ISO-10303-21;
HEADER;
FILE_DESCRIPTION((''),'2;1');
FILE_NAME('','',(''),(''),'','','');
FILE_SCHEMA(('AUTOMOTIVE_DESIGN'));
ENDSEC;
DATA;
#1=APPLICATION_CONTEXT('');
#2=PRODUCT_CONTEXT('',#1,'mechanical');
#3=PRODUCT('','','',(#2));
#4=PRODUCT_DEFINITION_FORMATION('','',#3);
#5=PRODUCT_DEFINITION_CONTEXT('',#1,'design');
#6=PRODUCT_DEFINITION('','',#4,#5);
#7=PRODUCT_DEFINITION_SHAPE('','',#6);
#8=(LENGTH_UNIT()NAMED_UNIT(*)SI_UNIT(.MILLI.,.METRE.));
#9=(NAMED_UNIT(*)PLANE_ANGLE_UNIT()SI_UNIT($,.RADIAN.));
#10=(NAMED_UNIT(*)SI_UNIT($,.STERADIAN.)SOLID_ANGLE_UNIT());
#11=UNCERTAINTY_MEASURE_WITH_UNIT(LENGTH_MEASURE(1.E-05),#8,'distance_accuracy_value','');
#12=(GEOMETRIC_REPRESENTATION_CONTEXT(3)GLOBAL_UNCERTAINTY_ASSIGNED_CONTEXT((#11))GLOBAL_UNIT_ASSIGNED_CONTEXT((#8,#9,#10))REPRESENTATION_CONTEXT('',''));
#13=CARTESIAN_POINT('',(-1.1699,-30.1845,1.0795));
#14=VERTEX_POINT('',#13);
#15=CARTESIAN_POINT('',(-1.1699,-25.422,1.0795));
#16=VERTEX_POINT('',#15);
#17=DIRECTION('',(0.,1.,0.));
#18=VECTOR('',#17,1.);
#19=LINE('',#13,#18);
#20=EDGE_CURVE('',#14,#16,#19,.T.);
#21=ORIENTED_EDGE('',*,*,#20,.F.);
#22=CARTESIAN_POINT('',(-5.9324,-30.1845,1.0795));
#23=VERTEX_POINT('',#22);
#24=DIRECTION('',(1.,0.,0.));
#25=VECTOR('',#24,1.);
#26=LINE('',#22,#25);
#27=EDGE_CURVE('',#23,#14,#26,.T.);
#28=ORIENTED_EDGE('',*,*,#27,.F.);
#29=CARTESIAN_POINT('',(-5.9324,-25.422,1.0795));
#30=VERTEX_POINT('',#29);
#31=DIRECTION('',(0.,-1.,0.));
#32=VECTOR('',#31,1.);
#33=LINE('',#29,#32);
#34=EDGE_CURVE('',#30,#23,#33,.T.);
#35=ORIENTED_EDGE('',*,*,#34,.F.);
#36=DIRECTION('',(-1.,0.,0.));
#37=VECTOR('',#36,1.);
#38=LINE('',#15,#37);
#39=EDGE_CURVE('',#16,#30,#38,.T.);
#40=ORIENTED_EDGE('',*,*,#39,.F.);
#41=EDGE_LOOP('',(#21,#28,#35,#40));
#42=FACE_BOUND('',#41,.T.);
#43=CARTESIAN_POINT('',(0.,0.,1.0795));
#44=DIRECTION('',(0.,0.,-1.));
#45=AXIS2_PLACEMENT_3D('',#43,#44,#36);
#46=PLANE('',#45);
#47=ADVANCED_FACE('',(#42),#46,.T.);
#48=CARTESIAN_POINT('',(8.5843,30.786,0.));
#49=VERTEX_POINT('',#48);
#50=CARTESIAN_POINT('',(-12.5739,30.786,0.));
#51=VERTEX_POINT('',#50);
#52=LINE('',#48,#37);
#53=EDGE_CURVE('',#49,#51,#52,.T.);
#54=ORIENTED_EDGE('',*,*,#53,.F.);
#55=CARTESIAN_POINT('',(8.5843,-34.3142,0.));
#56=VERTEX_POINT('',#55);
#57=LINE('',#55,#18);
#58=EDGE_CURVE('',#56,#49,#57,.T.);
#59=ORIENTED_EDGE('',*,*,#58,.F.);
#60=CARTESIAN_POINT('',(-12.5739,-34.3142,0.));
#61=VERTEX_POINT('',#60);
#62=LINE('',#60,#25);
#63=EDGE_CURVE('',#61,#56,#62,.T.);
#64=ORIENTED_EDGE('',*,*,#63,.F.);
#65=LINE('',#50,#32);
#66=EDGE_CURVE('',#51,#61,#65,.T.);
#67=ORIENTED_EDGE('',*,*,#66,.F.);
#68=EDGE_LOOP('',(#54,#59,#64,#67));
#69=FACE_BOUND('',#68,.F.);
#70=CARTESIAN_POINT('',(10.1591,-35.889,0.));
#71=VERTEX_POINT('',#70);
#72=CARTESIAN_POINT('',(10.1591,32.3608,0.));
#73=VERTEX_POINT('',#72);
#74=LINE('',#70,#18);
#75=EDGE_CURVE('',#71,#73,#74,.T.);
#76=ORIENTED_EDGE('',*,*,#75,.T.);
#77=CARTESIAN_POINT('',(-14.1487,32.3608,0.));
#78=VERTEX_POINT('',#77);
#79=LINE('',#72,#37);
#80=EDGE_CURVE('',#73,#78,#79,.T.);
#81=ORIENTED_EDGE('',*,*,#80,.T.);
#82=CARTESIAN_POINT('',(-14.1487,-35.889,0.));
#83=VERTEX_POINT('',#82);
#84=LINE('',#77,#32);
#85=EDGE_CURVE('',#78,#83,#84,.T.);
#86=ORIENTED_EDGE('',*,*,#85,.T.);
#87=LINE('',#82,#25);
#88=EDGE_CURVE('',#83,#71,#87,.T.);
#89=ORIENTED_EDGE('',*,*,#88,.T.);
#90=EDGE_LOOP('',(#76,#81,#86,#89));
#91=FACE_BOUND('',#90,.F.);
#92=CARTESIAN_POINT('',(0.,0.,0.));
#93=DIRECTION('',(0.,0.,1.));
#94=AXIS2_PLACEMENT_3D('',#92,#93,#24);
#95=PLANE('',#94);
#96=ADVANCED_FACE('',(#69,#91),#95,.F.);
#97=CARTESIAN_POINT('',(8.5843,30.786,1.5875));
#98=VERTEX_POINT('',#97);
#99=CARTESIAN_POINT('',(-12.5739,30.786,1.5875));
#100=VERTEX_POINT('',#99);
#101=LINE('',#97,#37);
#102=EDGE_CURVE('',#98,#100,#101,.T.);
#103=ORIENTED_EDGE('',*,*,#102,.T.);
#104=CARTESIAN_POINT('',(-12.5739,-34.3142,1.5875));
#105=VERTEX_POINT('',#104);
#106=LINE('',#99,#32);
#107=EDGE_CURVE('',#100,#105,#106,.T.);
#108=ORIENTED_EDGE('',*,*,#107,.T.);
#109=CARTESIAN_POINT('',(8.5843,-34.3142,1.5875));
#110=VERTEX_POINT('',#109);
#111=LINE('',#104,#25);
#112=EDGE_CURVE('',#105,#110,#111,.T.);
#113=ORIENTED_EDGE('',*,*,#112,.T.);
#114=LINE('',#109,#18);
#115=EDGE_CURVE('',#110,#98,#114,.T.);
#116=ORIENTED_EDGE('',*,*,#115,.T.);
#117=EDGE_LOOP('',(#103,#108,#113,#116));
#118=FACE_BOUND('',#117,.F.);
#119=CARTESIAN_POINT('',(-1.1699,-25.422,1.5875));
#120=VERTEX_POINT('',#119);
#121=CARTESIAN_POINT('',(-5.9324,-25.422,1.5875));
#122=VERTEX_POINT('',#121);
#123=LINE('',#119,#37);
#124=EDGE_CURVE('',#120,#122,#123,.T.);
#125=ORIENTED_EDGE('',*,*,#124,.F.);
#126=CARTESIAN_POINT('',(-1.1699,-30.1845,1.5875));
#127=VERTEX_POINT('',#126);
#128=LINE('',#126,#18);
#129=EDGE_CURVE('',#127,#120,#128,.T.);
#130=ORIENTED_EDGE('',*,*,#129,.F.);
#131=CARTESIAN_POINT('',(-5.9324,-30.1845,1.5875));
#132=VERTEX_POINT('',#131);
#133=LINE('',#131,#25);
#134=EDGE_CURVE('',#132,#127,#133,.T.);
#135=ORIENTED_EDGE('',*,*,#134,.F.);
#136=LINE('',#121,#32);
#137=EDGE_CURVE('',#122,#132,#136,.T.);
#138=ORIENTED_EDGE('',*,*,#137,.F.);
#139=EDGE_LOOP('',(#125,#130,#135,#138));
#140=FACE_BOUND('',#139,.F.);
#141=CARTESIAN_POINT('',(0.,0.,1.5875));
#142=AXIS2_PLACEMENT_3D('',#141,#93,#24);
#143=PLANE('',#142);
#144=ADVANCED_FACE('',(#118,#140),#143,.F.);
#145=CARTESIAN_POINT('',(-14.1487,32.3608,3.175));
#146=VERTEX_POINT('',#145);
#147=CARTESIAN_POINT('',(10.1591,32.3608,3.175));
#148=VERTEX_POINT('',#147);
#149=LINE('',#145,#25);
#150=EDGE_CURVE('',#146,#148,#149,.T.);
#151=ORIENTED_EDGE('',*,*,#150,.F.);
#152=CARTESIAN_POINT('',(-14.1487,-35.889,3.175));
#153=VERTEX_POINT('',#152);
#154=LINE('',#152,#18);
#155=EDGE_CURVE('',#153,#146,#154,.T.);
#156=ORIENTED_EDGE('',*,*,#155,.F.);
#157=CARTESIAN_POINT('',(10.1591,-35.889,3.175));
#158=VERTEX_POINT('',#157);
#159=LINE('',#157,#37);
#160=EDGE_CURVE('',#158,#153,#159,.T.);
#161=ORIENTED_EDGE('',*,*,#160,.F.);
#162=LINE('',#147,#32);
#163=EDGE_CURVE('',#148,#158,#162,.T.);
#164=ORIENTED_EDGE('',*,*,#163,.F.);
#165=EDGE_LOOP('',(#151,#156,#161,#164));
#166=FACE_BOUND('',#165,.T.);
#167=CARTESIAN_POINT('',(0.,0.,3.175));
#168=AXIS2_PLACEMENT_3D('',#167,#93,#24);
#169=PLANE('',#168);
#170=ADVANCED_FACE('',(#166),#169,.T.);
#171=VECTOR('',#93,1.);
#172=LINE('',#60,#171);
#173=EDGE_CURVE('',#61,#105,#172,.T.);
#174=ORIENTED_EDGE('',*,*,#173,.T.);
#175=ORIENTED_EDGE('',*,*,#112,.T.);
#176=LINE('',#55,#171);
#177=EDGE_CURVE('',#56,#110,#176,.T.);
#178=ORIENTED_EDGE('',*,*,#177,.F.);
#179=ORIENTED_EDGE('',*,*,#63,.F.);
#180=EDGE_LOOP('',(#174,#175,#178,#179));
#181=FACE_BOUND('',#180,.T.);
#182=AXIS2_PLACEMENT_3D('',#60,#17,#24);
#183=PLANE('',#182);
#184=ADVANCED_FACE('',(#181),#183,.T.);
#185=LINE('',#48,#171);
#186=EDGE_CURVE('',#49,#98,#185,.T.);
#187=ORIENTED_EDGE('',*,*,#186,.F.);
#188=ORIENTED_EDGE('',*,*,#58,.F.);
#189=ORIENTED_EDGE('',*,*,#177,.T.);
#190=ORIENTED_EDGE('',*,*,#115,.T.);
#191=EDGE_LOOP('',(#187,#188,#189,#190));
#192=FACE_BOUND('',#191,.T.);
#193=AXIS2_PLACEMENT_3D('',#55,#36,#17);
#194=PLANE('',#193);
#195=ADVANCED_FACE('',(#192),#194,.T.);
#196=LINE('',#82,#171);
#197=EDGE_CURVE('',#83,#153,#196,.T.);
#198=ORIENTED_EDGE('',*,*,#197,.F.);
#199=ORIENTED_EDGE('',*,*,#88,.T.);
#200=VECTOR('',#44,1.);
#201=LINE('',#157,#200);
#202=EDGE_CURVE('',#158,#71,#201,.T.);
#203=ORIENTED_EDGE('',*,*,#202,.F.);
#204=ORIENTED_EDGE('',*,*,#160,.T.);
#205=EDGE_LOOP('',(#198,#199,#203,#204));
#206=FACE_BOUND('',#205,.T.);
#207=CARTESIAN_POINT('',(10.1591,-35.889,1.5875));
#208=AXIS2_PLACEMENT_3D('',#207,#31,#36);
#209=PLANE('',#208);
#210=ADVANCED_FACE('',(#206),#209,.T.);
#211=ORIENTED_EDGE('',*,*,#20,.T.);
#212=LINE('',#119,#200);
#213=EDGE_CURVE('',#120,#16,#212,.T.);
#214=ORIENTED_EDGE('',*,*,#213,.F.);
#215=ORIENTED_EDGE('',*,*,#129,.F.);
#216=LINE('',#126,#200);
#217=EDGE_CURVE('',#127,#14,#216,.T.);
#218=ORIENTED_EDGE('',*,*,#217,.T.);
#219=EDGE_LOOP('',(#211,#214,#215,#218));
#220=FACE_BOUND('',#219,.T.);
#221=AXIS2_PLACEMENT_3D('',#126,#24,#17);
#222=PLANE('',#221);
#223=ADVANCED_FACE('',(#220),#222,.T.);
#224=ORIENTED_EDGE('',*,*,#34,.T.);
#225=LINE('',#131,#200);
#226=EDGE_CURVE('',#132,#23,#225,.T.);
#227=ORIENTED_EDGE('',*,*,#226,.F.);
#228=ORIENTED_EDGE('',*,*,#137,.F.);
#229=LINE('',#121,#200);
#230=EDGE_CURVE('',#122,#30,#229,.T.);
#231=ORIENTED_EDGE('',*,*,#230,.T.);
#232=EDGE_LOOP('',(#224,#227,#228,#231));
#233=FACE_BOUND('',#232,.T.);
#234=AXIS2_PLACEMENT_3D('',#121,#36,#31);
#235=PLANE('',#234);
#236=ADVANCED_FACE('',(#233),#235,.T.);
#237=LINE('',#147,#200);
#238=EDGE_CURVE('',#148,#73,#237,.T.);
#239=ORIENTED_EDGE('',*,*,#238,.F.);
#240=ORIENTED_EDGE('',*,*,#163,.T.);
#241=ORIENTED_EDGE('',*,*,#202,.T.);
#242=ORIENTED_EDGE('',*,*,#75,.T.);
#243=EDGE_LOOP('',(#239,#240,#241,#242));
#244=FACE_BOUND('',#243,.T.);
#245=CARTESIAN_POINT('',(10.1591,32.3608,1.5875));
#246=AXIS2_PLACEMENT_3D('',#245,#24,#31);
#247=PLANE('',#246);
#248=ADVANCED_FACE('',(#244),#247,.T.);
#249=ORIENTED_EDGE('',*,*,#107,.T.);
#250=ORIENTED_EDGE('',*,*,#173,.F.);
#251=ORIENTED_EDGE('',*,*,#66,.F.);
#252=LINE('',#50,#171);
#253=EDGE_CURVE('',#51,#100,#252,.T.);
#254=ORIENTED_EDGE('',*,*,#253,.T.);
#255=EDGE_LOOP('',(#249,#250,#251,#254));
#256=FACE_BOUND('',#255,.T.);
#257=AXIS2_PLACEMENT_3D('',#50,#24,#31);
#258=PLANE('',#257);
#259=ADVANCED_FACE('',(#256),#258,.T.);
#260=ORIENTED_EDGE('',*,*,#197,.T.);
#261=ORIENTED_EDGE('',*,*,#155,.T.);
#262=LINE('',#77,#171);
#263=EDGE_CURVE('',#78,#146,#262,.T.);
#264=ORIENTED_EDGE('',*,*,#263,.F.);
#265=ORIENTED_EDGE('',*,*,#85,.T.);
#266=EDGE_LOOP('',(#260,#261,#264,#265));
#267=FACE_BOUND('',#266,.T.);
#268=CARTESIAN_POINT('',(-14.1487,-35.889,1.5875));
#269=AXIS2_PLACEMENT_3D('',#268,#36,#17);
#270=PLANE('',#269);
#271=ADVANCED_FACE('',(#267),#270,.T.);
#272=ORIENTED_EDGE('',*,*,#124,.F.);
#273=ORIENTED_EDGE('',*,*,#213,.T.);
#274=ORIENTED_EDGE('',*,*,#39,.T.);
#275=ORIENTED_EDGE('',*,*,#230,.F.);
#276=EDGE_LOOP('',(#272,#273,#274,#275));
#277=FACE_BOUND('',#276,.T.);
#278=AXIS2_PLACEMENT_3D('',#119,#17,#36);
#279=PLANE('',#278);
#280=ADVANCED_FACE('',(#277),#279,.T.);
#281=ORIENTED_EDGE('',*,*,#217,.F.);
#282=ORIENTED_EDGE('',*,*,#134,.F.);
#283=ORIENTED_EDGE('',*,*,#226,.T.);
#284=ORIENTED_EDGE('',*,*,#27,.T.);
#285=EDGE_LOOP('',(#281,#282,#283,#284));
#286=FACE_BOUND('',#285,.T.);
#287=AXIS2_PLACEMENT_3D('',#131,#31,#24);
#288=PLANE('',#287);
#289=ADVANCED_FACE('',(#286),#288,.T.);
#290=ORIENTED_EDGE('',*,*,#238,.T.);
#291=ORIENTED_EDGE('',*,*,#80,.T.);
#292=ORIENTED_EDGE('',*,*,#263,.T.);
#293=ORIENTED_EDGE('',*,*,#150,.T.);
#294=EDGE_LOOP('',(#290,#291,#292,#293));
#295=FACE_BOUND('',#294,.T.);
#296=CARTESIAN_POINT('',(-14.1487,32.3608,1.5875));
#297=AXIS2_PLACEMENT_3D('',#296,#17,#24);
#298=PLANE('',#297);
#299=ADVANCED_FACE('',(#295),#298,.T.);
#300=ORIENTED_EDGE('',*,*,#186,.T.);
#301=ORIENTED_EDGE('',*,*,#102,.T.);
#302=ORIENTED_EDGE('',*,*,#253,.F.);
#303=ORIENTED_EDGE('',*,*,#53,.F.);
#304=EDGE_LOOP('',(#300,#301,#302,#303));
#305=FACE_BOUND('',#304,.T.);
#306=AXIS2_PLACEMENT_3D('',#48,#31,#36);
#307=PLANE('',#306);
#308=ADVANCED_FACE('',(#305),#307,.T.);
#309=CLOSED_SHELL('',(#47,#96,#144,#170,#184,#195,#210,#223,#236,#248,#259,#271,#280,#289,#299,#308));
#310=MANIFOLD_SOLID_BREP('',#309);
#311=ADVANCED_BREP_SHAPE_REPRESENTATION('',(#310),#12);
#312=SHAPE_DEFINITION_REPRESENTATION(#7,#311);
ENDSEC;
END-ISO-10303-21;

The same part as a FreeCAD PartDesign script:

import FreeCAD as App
import Part
import Sketcher
from FreeCAD import Vector
Q = App.Units.Quantity

doc = App.newDocument("Part")
body = doc.addObject("PartDesign::Body", "Body")

# Sketch on XY plane
sketch1 = doc.addObject("Sketcher::SketchObject", "Sketch")
body.addObject(sketch1)
sketch1.AttachmentSupport = (doc.XY_Plane, [""])
sketch1.MapMode = "FlatFace"
sketch1.addGeometry([
    Part.LineSegment(Vector(10, -36, 0), Vector(10, 32, 0)),  # 0
    Part.LineSegment(Vector(10, 32, 0), Vector(-14, 32, 0)),  # 1
    Part.LineSegment(Vector(-14, 32, 0), Vector(-14, -36, 0)),  # 2
    Part.LineSegment(Vector(-14, -36, 0), Vector(10, -36, 0)),  # 3
    Part.LineSegment(Vector(-13, 31, 0), Vector(9, 31, 0)),  # 4
    Part.LineSegment(Vector(9, 31, 0), Vector(9, -34, 0)),  # 5
    Part.LineSegment(Vector(9, -34, 0), Vector(-13, -34, 0)),  # 6
    Part.LineSegment(Vector(-13, -34, 0), Vector(-13, 31, 0)),  # 7
], False)
sketch1.addConstraint([
    Sketcher.Constraint("Coincident", 0, 2, 1, 1),
    Sketcher.Constraint("Coincident", 1, 2, 2, 1),
    Sketcher.Constraint("Coincident", 2, 2, 3, 1),
    Sketcher.Constraint("Coincident", 3, 2, 0, 1),
    Sketcher.Constraint("Coincident", 4, 2, 5, 1),
    Sketcher.Constraint("Coincident", 5, 2, 6, 1),
    Sketcher.Constraint("Coincident", 6, 2, 7, 1),
    Sketcher.Constraint("Coincident", 7, 2, 4, 1),
    Sketcher.Constraint("Vertical", 0),
    Sketcher.Constraint("Horizontal", 1),
    Sketcher.Constraint("Vertical", 2),
    Sketcher.Constraint("Horizontal", 3),
    Sketcher.Constraint("Horizontal", 4),
    Sketcher.Constraint("Vertical", 5),
    Sketcher.Constraint("Horizontal", 6),
    Sketcher.Constraint("Vertical", 7),
    Sketcher.Constraint("DistanceX", 1, 2, 4, 2, Q("0.895 in")),
    Sketcher.Constraint("DistanceY", 3, 2, 4, 2, Q("2.625 in")),
    Sketcher.Constraint("DistanceY", 5, 2, 0, 2, Q("2.625 in")),
    Sketcher.Constraint("DistanceX", 6, 2, 3, 2, Q("0.895 in")),
    Sketcher.Constraint("DistanceX", 1, 2, 1, 1, Q("0.957 in")),
    Sketcher.Constraint("DistanceY", 0, 1, 0, 2, Q("2.687 in")),
    Sketcher.Constraint("DistanceX", -1, 1, 0, 2, Q("10.159 mm")),
    Sketcher.Constraint("DistanceY", -1, 1, 0, 2, Q("32.3608 mm")),
])
pad1 = doc.addObject("PartDesign::Pad", "Pad")
body.addObject(pad1)
pad1.Profile = sketch1
pad1.Length = Q("0.0625 in")

# Sketch on XY plane
sketch2 = doc.addObject("Sketcher::SketchObject", "Sketch001")
body.addObject(sketch2)
sketch2.AttachmentSupport = (doc.XY_Plane, [""])
sketch2.MapMode = "FlatFace"
sketch2.AttachmentOffset = App.Placement(Vector(0, 0, 0.0625 * 25.4), App.Rotation())
sketch2.addGeometry([
    Part.LineSegment(Vector(10, 32, 0), Vector(-14, 32, 0)),
    Part.LineSegment(Vector(-14, 32, 0), Vector(-14, -36, 0)),
    Part.LineSegment(Vector(-14, -36, 0), Vector(10, -36, 0)),
    Part.LineSegment(Vector(10, -36, 0), Vector(10, 32, 0)),
], False)
sketch2.addConstraint([
    Sketcher.Constraint("Coincident", 0, 2, 1, 1),
    Sketcher.Constraint("Coincident", 1, 2, 2, 1),
    Sketcher.Constraint("Coincident", 2, 2, 3, 1),
    Sketcher.Constraint("Coincident", 3, 2, 0, 1),
    Sketcher.Constraint("Horizontal", 0),
    Sketcher.Constraint("Vertical", 1),
    Sketcher.Constraint("Horizontal", 2),
    Sketcher.Constraint("Vertical", 3),
    Sketcher.Constraint("DistanceX", 0, 2, 0, 1, Q("0.957 in")),
    Sketcher.Constraint("DistanceY", 1, 2, 1, 1, Q("2.687 in")),
    Sketcher.Constraint("DistanceX", 0, 2, -1, 1, Q("14.1487 mm")),
    Sketcher.Constraint("DistanceY", -1, 1, 0, 2, Q("32.3608 mm")),
])
pad2 = doc.addObject("PartDesign::Pad", "Pad001")
body.addObject(pad2)
pad2.Profile = sketch2
pad2.Length = Q("0.0625 in")

# Sketch on XY plane
sketch3 = doc.addObject("Sketcher::SketchObject", "Sketch002")
body.addObject(sketch3)
sketch3.AttachmentSupport = (doc.XY_Plane, [""])
sketch3.MapMode = "FlatFace"
sketch3.AttachmentOffset = App.Placement(Vector(0, 0, 0.0625 * 25.4), App.Rotation())
sketch3.addGeometry([
    Part.LineSegment(Vector(-5.9, -25.4, 0), Vector(-1.2, -25.4, 0)),
    Part.LineSegment(Vector(-1.2, -25.4, 0), Vector(-1.2, -30.2, 0)),
    Part.LineSegment(Vector(-1.2, -30.2, 0), Vector(-5.9, -30.2, 0)),
    Part.LineSegment(Vector(-5.9, -30.2, 0), Vector(-5.9, -25.4, 0)),
], False)
sketch3.addConstraint([
    Sketcher.Constraint("Coincident", 0, 2, 1, 1),
    Sketcher.Constraint("Coincident", 1, 2, 2, 1),
    Sketcher.Constraint("Coincident", 2, 2, 3, 1),
    Sketcher.Constraint("Coincident", 3, 2, 0, 1),
    Sketcher.Constraint("Horizontal", 0),
    Sketcher.Constraint("Vertical", 1),
    Sketcher.Constraint("Horizontal", 2),
    Sketcher.Constraint("Vertical", 3),
    Sketcher.Constraint("Equal", 2, 1),
    Sketcher.Constraint("DistanceX", 0, 1, 0, 2, Q("0.1875 in")),
    Sketcher.Constraint("DistanceX", 0, 2, -1, 1, Q("1.17 mm")),
    Sketcher.Constraint("DistanceY", 0, 2, -1, 1, Q("25.422 mm")),
])
pad3 = doc.addObject("PartDesign::Pad", "Pad002")
body.addObject(pad3)
pad3.Profile = sketch3
pad3.Length = Q("0.02 in")
pad3.Reversed = True

doc.recompute()
